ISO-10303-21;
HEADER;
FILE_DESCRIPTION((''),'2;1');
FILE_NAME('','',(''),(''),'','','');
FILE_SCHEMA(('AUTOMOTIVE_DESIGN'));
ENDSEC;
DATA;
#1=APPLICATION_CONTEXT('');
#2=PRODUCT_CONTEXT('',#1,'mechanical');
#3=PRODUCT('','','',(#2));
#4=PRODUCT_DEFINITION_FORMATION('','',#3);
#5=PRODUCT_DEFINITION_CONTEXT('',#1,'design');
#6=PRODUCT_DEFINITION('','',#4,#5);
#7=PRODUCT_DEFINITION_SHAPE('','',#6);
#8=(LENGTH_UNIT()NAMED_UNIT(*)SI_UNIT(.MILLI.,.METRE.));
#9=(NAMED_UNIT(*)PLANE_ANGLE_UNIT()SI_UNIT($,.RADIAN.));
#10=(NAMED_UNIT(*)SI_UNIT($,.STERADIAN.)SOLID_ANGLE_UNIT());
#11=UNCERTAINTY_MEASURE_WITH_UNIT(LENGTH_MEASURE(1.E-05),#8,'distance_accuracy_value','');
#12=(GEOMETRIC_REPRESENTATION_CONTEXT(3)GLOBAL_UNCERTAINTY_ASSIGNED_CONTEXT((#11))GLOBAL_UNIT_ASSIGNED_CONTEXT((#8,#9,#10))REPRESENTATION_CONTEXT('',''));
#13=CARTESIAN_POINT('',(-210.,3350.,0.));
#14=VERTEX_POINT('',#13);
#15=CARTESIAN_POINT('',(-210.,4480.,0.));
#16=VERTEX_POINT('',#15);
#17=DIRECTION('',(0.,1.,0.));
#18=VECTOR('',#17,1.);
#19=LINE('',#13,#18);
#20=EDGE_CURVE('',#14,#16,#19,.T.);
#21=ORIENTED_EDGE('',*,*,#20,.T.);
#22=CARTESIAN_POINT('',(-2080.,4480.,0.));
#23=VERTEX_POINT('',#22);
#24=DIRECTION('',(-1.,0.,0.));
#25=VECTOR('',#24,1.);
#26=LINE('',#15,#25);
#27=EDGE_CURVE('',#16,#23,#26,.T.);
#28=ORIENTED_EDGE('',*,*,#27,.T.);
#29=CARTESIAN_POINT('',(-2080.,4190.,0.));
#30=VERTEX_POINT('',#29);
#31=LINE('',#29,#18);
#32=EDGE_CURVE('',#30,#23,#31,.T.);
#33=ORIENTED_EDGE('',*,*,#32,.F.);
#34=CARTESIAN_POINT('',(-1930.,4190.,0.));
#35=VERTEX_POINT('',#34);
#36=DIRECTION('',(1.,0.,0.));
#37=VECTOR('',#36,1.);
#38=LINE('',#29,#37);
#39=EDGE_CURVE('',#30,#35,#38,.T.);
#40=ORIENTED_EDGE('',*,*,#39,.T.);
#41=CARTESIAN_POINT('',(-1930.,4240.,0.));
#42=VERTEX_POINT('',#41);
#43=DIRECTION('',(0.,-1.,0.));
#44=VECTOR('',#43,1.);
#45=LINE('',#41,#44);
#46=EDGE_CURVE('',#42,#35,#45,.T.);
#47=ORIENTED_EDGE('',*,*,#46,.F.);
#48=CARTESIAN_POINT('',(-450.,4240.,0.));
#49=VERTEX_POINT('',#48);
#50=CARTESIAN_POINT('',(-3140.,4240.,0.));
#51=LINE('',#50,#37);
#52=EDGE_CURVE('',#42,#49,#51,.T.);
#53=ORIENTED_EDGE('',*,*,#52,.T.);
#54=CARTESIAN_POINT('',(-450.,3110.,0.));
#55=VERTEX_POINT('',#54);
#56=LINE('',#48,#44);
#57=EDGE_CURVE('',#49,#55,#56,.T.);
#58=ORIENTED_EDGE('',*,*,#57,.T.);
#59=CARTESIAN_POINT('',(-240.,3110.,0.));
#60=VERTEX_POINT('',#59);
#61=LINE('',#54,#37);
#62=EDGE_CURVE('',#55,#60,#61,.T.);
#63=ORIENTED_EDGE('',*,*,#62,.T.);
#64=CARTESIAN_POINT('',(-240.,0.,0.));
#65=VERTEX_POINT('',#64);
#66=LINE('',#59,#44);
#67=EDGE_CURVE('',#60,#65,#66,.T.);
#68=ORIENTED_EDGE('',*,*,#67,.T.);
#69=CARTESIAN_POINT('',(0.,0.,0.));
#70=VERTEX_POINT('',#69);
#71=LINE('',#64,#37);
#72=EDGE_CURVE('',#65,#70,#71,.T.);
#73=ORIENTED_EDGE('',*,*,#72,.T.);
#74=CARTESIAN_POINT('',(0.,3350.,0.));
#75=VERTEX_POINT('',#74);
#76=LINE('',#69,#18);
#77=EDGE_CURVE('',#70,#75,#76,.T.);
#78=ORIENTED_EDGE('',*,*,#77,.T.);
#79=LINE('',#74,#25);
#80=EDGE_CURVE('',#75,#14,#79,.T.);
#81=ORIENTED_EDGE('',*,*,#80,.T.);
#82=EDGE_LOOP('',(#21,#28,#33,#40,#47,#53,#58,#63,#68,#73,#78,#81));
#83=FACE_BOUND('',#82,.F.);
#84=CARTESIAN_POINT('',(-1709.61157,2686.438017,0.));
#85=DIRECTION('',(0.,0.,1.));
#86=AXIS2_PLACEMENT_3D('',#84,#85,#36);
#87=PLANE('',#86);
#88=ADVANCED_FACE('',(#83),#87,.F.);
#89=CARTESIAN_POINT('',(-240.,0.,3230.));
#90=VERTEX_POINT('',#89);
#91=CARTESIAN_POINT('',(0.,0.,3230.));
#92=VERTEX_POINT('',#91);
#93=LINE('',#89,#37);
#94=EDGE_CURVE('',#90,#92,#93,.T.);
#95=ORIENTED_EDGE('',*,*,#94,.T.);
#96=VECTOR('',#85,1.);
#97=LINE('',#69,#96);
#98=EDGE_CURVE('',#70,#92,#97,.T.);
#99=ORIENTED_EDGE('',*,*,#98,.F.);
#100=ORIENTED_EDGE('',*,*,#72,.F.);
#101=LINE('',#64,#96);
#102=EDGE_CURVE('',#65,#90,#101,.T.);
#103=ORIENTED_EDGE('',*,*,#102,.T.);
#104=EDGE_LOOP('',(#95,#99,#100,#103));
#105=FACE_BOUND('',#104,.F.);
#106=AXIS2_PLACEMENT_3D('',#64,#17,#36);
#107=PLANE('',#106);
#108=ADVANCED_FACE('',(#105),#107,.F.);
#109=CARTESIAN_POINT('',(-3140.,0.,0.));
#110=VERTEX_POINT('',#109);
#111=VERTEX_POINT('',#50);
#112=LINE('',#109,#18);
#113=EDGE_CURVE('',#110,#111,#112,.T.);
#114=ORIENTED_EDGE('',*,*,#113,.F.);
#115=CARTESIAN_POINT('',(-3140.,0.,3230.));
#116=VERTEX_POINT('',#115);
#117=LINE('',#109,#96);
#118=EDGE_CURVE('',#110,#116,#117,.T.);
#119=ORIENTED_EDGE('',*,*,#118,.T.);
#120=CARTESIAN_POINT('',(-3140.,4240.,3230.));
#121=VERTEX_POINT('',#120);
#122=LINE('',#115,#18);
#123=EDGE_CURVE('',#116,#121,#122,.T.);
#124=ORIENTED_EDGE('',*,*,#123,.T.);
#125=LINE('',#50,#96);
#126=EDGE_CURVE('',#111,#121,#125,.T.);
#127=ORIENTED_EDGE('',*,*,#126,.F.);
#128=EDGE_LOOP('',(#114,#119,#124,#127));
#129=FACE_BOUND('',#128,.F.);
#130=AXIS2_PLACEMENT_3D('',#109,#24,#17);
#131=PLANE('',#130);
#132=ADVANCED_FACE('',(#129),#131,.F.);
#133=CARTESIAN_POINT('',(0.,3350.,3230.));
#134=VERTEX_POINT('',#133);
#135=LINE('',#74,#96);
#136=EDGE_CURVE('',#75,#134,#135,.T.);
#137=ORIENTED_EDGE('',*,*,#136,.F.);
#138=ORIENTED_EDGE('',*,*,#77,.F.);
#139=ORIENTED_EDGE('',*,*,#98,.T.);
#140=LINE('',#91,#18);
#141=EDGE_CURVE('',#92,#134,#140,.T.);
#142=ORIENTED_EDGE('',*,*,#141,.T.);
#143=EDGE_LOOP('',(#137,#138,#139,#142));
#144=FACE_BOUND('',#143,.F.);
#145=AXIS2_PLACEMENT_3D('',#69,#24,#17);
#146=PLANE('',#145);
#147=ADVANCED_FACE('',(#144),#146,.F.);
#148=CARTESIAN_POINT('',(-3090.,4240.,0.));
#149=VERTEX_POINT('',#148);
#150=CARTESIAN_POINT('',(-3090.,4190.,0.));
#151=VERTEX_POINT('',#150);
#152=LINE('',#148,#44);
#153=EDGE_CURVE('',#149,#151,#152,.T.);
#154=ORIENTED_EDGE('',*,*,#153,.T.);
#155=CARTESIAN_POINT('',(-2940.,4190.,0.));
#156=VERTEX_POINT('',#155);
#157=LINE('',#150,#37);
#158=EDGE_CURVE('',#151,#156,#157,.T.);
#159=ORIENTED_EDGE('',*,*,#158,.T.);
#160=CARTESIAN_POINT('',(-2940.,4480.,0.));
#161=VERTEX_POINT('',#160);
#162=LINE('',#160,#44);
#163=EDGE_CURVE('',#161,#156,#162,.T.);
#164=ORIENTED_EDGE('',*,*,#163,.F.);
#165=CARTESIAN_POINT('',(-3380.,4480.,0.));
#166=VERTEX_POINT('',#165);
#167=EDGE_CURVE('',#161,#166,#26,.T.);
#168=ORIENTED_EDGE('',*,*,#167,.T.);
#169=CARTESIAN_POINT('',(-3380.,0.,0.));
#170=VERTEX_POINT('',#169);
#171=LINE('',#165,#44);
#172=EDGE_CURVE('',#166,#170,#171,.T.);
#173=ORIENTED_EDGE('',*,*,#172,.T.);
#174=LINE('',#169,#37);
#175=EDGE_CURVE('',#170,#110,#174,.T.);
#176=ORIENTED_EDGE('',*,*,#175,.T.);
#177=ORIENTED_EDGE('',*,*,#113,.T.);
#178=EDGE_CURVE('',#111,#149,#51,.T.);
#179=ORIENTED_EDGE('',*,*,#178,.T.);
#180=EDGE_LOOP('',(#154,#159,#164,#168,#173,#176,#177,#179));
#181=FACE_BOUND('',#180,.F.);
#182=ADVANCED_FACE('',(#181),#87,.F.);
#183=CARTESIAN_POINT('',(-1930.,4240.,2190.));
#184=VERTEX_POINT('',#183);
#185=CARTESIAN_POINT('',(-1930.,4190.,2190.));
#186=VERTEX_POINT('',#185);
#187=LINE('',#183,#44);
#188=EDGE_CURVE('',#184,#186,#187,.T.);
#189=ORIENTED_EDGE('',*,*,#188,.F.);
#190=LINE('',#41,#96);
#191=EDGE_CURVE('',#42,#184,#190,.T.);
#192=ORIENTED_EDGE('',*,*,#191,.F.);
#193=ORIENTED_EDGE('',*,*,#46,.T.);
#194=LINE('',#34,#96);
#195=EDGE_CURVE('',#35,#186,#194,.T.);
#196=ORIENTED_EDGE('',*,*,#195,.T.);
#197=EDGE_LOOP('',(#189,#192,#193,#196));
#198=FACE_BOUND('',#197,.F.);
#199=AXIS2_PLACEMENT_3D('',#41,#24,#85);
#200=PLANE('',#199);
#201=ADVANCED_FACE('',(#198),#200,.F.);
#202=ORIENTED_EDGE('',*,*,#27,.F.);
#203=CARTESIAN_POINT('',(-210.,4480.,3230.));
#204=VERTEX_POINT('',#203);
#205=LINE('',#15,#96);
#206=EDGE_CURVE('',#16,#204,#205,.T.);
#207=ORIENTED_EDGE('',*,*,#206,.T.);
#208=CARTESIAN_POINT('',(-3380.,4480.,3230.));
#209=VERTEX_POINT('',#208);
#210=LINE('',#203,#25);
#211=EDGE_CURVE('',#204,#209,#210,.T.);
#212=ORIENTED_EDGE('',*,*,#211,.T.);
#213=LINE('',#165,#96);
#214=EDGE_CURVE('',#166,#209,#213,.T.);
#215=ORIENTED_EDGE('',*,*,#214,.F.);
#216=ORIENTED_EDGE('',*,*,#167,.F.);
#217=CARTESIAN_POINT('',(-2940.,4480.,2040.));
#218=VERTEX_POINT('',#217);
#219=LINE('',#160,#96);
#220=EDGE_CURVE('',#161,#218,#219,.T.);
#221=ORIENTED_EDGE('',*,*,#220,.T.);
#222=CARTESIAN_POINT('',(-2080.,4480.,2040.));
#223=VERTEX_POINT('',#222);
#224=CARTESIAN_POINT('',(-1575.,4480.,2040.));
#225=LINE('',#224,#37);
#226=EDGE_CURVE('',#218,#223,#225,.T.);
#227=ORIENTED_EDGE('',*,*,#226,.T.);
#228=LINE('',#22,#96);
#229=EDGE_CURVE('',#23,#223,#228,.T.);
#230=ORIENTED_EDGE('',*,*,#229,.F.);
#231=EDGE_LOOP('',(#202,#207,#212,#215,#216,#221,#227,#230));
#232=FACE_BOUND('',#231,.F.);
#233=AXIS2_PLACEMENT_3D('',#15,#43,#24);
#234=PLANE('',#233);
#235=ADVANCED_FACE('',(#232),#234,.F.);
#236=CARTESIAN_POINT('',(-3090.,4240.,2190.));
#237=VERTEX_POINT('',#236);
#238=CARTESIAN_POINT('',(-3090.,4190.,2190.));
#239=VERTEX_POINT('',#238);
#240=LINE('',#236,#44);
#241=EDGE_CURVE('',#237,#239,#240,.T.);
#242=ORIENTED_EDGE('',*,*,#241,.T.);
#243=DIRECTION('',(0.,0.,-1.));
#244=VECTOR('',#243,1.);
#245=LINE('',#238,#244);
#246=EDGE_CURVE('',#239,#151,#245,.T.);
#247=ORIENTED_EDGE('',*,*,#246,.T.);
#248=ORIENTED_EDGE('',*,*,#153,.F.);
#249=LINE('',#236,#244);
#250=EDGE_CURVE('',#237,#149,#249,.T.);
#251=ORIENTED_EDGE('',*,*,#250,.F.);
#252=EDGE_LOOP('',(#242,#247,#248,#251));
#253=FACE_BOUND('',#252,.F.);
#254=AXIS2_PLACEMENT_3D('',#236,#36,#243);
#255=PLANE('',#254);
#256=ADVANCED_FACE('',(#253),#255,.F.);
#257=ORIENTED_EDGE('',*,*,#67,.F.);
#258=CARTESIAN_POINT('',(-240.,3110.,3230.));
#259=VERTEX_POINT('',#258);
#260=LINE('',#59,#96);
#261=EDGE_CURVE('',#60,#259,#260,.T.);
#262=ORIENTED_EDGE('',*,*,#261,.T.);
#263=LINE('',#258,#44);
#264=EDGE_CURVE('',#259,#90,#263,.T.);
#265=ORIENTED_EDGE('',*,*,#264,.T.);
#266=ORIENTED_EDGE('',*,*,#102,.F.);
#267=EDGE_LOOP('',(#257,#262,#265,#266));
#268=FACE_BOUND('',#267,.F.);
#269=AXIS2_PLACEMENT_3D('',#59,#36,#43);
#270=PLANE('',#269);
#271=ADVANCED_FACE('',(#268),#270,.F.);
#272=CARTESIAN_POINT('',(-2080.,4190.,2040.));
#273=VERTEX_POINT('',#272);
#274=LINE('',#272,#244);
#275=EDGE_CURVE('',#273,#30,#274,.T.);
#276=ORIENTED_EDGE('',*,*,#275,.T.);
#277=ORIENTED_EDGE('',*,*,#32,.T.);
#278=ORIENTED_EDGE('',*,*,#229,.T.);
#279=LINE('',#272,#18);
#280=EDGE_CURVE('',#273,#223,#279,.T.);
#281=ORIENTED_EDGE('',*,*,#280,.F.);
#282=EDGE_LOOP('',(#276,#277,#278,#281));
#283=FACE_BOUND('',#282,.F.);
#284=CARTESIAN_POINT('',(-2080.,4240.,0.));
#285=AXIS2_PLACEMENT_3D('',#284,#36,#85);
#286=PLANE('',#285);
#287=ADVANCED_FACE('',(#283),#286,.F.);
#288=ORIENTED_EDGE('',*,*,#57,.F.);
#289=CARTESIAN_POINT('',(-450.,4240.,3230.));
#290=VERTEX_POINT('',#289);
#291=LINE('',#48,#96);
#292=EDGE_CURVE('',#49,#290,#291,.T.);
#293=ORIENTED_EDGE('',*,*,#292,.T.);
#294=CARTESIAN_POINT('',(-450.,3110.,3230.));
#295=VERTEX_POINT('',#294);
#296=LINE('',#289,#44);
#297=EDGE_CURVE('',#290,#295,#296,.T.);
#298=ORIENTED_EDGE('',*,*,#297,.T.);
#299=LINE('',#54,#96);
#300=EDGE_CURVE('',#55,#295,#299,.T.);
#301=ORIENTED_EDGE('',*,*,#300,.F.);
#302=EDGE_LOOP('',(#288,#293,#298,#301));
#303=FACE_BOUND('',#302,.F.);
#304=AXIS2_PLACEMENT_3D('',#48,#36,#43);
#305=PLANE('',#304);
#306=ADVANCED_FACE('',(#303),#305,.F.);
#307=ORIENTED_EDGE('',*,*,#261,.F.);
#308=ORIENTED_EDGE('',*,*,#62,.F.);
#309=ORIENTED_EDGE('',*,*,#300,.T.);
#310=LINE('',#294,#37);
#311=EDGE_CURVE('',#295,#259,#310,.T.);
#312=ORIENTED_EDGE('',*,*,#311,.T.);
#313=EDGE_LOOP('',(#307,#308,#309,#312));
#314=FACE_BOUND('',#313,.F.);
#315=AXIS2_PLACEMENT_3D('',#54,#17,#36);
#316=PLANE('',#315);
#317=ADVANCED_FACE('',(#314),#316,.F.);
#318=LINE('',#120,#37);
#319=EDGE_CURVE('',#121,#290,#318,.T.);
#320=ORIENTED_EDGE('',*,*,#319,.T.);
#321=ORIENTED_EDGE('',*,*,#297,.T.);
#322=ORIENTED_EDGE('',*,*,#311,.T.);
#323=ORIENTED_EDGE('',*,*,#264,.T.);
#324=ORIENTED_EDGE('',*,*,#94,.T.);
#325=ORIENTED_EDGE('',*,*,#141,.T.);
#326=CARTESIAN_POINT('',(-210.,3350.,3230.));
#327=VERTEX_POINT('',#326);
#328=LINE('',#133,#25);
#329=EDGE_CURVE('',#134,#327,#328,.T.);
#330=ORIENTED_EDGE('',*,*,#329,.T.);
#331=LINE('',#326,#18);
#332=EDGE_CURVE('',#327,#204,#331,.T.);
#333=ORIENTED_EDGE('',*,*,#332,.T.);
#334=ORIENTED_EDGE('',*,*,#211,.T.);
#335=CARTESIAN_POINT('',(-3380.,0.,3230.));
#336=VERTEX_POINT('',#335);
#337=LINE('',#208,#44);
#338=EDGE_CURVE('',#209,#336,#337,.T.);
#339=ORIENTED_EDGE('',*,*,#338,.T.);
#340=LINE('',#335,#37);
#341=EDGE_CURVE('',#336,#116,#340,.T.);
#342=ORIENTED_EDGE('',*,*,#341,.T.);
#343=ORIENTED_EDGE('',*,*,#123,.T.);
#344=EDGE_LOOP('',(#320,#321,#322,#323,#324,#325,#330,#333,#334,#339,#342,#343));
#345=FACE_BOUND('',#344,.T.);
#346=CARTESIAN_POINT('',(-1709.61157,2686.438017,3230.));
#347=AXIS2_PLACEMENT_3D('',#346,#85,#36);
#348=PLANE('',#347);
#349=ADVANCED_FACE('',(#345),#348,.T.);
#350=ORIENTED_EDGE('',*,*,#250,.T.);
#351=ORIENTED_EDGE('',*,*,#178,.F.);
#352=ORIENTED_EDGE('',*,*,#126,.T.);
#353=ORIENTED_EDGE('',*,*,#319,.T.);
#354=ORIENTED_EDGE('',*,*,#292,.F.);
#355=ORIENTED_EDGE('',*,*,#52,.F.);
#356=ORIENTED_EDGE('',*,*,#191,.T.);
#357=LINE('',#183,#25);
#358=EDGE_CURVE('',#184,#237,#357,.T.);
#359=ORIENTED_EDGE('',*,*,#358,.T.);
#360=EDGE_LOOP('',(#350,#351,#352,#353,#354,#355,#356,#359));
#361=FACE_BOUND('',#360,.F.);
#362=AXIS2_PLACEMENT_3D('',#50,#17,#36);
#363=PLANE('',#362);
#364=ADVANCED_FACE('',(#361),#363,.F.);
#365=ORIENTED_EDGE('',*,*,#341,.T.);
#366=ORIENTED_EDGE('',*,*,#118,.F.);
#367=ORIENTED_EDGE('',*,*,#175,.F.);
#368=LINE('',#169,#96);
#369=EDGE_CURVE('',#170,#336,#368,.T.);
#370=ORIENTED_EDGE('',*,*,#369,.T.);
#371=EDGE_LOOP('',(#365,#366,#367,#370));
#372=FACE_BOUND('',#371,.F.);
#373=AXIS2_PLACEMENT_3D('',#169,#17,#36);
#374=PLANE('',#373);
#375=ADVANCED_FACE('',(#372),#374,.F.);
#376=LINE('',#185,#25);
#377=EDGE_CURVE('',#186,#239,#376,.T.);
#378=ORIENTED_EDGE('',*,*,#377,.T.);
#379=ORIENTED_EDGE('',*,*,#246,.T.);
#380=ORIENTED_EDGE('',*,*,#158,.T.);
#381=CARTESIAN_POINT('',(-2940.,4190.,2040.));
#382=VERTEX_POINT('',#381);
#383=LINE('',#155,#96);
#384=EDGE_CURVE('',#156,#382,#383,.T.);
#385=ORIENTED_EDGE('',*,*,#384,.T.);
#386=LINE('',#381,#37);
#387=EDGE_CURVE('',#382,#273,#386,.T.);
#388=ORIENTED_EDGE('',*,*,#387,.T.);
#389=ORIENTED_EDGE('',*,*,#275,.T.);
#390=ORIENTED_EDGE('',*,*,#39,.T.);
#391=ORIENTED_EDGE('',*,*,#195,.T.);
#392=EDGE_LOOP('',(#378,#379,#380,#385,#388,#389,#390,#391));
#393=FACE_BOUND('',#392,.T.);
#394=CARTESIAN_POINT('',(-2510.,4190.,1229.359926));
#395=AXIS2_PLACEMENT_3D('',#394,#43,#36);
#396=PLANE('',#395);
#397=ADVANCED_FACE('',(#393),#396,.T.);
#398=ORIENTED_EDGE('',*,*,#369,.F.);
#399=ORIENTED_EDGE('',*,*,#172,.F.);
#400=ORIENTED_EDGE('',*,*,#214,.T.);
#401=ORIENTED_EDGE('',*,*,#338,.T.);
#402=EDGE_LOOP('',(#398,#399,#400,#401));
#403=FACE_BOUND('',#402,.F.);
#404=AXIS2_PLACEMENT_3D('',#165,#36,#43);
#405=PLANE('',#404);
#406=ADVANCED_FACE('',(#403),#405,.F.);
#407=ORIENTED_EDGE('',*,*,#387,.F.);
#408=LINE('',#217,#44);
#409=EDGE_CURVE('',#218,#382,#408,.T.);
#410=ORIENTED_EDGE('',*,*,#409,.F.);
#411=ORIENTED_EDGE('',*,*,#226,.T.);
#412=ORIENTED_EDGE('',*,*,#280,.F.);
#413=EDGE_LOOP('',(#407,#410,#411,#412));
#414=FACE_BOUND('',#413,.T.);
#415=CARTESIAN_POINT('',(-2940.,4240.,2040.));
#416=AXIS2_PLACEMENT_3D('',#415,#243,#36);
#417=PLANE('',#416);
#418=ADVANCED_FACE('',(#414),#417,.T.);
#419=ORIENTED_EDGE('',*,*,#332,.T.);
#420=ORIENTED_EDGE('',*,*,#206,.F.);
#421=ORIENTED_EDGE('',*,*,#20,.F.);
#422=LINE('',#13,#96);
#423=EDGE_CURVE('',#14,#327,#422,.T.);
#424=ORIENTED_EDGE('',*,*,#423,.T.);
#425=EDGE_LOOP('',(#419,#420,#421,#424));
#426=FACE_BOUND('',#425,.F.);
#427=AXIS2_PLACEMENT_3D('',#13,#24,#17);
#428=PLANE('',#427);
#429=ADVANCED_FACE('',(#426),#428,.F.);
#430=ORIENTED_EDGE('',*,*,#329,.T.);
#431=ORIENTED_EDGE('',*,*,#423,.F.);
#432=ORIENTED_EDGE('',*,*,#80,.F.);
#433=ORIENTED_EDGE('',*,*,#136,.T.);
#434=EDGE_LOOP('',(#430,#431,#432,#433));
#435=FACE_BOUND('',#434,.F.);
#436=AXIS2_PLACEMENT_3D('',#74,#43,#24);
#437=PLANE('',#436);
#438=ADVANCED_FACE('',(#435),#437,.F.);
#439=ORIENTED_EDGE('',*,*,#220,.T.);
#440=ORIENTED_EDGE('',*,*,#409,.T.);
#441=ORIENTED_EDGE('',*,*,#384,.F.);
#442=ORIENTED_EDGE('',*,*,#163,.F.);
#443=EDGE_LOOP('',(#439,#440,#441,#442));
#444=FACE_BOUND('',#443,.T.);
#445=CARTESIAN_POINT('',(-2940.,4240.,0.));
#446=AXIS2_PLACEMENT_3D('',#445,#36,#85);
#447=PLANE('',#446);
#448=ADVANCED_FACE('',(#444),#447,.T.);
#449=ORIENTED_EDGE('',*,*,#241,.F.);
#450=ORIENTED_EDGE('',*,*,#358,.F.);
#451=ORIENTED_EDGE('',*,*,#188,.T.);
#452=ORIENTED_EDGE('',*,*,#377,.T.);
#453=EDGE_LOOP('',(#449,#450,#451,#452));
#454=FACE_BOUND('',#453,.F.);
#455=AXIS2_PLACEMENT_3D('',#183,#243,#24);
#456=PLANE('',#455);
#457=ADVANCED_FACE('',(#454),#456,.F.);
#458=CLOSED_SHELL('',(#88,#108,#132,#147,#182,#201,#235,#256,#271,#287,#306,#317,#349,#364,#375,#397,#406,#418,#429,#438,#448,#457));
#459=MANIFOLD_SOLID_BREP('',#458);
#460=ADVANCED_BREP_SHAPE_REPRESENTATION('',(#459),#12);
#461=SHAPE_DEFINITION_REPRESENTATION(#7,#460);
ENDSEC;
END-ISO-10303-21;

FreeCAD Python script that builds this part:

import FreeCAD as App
import Part
import Sketcher
Q = App.Units.Quantity


def add_polygon(sketch, points):
    """Adds a closed chain of lines whose ends are joined by coincident constraints."""
    first, n = sketch.GeometryCount, len(points)
    for a, b in zip(points, points[1:] + points[:1]):
        sketch.addGeometry(Part.LineSegment(App.Vector(*a, 0), App.Vector(*b, 0)), False)
    for i in range(n):
        sketch.addConstraint(Sketcher.Constraint("Coincident", first + i, 2, first + (i + 1) % n, 1))

doc = App.newDocument("Part")
body = doc.addObject("PartDesign::Body", "Body")

# Sketch on XY plane
sketch1 = body.newObject("Sketcher::SketchObject", "Sketch")
sketch1.AttachmentSupport = (doc.getObject("XY_Plane"), [""])
sketch1.MapMode = "FlatFace"
add_polygon(sketch1, [(-3140, 4240), (-450, 4240), (-450, 3110), (-240, 3110), (-240, 0), (0, 0), (0, 3350), (-210, 3350), (-210, 4480), (-3380, 4480), (-3380, 0), (-3140, 0)])  # lines 0-11
sketch1.addConstraint(Sketcher.Constraint("Horizontal", 0))
sketch1.addConstraint(Sketcher.Constraint("Vertical", 1))
sketch1.addConstraint(Sketcher.Constraint("Horizontal", 2))
sketch1.addConstraint(Sketcher.Constraint("Vertical", 3))
sketch1.addConstraint(Sketcher.Constraint("Horizontal", 4))
sketch1.addConstraint(Sketcher.Constraint("Vertical", 5))
sketch1.addConstraint(Sketcher.Constraint("Horizontal", 6))
sketch1.addConstraint(Sketcher.Constraint("Vertical", 7))
sketch1.addConstraint(Sketcher.Constraint("Horizontal", 8))
sketch1.addConstraint(Sketcher.Constraint("Vertical", 9))
sketch1.addConstraint(Sketcher.Constraint("Horizontal", 10))
sketch1.addConstraint(Sketcher.Constraint("Vertical", 11))
sketch1.addConstraint(Sketcher.Constraint("Coincident", 4, 2, -1, 1))
sketch1.addConstraint(Sketcher.Constraint("PointOnObject", 9, 2, -1))
sketch1.addConstraint(Sketcher.Constraint("Equal", 2, 6))
sketch1.addConstraint(Sketcher.Constraint("Equal", 4, 10))
sketch1.addConstraint(Sketcher.Constraint("Equal", 1, 7))
sketch1.addConstraint(Sketcher.Constraint("DistanceX", 0, 1, 0, 2, Q("2690 mm")))
sketch1.addConstraint(Sketcher.Constraint("DistanceX", 2, 1, 2, 2, Q("210 mm")))
sketch1.addConstraint(Sketcher.Constraint("DistanceX", 4, 1, 4, 2, Q("240 mm")))
sketch1.addConstraint(Sketcher.Constraint("DistanceY", 1, 2, 1, 1, Q("1130 mm")))
sketch1.addConstraint(Sketcher.Constraint("DistanceY", 3, 2, 3, 1, Q("3110 mm")))
sketch1.addConstraint(Sketcher.Constraint("DistanceY", 5, 1, 5, 2, Q("3350 mm")))
pad1 = body.newObject("PartDesign::Pad", "Pad")
pad1.Profile = sketch1
pad1.Length = 3230

# Sketch on XZ plane
sketch2 = body.newObject("Sketcher::SketchObject", "Sketch001")
sketch2.AttachmentSupport = (doc.getObject("XZ_Plane"), [""])
sketch2.MapMode = "FlatFace"
sketch2.AttachmentOffset = App.Placement(App.Vector(0, 0, -4240), App.Rotation())
add_polygon(sketch2, [(-1930, 2190), (-3090, 2190), (-3090, 0), (-2940, 0), (-2940, 2040), (-2080, 2040), (-2080, 0), (-1930, 0)])  # lines 0-7
sketch2.addConstraint(Sketcher.Constraint("Horizontal", 0))
sketch2.addConstraint(Sketcher.Constraint("Vertical", 1))
sketch2.addConstraint(Sketcher.Constraint("Horizontal", 2))
sketch2.addConstraint(Sketcher.Constraint("Vertical", 3))
sketch2.addConstraint(Sketcher.Constraint("Horizontal", 4))
sketch2.addConstraint(Sketcher.Constraint("Vertical", 5))
sketch2.addConstraint(Sketcher.Constraint("Horizontal", 6))
sketch2.addConstraint(Sketcher.Constraint("Vertical", 7))
sketch2.addConstraint(Sketcher.Constraint("PointOnObject", 1, 2, -1))
sketch2.addConstraint(Sketcher.Constraint("PointOnObject", 5, 2, -1))
sketch2.addConstraint(Sketcher.Constraint("Equal", 2, 6))
sketch2.addConstraint(Sketcher.Constraint("DistanceX", 0, 2, 0, 1, Q("1160 mm")))
sketch2.addConstraint(Sketcher.Constraint("DistanceX", 2, 1, 2, 2, Q("150 mm")))
sketch2.addConstraint(Sketcher.Constraint("DistanceY", 1, 2, 1, 1, Q("2190 mm")))
sketch2.addConstraint(Sketcher.Constraint("DistanceY", 3, 1, 3, 2, Q("2040 mm")))
sketch2.addConstraint(Sketcher.Constraint("DistanceX", 0, 2, -1, 1, Q("3090 mm")))
pad2 = body.newObject("PartDesign::Pad", "Pad001")
pad2.Profile = sketch2
pad2.Length = 50

# Sketch on XZ plane
sketch3 = body.newObject("Sketcher::SketchObject", "Sketch002")
sketch3.AttachmentSupport = (doc.getObject("XZ_Plane"), [""])
sketch3.MapMode = "FlatFace"
sketch3.AttachmentOffset = App.Placement(App.Vector(0, 0, -4240), App.Rotation())
add_polygon(sketch3, [(-2940, 2040), (-2940, 0), (-2080, 0), (-2080, 2040)])  # lines 0-3
sketch3.addConstraint(Sketcher.Constraint("Vertical", 0))
sketch3.addConstraint(Sketcher.Constraint("Horizontal", 1))
sketch3.addConstraint(Sketcher.Constraint("Vertical", 2))
sketch3.addConstraint(Sketcher.Constraint("Horizontal", 3))
sketch3.addConstraint(Sketcher.Constraint("PointOnObject", 0, 2, -1))
sketch3.addConstraint(Sketcher.Constraint("DistanceX", 1, 1, 1, 2, Q("860 mm")))
sketch3.addConstraint(Sketcher.Constraint("DistanceY", 0, 2, 0, 1, Q("2040 mm")))
sketch3.addConstraint(Sketcher.Constraint("DistanceX", 0, 2, -1, 1, Q("2940 mm")))
pocket1 = body.newObject("PartDesign::Pocket", "Pocket")
pocket1.Profile = sketch3
pocket1.Length = 300

doc.recompute()
